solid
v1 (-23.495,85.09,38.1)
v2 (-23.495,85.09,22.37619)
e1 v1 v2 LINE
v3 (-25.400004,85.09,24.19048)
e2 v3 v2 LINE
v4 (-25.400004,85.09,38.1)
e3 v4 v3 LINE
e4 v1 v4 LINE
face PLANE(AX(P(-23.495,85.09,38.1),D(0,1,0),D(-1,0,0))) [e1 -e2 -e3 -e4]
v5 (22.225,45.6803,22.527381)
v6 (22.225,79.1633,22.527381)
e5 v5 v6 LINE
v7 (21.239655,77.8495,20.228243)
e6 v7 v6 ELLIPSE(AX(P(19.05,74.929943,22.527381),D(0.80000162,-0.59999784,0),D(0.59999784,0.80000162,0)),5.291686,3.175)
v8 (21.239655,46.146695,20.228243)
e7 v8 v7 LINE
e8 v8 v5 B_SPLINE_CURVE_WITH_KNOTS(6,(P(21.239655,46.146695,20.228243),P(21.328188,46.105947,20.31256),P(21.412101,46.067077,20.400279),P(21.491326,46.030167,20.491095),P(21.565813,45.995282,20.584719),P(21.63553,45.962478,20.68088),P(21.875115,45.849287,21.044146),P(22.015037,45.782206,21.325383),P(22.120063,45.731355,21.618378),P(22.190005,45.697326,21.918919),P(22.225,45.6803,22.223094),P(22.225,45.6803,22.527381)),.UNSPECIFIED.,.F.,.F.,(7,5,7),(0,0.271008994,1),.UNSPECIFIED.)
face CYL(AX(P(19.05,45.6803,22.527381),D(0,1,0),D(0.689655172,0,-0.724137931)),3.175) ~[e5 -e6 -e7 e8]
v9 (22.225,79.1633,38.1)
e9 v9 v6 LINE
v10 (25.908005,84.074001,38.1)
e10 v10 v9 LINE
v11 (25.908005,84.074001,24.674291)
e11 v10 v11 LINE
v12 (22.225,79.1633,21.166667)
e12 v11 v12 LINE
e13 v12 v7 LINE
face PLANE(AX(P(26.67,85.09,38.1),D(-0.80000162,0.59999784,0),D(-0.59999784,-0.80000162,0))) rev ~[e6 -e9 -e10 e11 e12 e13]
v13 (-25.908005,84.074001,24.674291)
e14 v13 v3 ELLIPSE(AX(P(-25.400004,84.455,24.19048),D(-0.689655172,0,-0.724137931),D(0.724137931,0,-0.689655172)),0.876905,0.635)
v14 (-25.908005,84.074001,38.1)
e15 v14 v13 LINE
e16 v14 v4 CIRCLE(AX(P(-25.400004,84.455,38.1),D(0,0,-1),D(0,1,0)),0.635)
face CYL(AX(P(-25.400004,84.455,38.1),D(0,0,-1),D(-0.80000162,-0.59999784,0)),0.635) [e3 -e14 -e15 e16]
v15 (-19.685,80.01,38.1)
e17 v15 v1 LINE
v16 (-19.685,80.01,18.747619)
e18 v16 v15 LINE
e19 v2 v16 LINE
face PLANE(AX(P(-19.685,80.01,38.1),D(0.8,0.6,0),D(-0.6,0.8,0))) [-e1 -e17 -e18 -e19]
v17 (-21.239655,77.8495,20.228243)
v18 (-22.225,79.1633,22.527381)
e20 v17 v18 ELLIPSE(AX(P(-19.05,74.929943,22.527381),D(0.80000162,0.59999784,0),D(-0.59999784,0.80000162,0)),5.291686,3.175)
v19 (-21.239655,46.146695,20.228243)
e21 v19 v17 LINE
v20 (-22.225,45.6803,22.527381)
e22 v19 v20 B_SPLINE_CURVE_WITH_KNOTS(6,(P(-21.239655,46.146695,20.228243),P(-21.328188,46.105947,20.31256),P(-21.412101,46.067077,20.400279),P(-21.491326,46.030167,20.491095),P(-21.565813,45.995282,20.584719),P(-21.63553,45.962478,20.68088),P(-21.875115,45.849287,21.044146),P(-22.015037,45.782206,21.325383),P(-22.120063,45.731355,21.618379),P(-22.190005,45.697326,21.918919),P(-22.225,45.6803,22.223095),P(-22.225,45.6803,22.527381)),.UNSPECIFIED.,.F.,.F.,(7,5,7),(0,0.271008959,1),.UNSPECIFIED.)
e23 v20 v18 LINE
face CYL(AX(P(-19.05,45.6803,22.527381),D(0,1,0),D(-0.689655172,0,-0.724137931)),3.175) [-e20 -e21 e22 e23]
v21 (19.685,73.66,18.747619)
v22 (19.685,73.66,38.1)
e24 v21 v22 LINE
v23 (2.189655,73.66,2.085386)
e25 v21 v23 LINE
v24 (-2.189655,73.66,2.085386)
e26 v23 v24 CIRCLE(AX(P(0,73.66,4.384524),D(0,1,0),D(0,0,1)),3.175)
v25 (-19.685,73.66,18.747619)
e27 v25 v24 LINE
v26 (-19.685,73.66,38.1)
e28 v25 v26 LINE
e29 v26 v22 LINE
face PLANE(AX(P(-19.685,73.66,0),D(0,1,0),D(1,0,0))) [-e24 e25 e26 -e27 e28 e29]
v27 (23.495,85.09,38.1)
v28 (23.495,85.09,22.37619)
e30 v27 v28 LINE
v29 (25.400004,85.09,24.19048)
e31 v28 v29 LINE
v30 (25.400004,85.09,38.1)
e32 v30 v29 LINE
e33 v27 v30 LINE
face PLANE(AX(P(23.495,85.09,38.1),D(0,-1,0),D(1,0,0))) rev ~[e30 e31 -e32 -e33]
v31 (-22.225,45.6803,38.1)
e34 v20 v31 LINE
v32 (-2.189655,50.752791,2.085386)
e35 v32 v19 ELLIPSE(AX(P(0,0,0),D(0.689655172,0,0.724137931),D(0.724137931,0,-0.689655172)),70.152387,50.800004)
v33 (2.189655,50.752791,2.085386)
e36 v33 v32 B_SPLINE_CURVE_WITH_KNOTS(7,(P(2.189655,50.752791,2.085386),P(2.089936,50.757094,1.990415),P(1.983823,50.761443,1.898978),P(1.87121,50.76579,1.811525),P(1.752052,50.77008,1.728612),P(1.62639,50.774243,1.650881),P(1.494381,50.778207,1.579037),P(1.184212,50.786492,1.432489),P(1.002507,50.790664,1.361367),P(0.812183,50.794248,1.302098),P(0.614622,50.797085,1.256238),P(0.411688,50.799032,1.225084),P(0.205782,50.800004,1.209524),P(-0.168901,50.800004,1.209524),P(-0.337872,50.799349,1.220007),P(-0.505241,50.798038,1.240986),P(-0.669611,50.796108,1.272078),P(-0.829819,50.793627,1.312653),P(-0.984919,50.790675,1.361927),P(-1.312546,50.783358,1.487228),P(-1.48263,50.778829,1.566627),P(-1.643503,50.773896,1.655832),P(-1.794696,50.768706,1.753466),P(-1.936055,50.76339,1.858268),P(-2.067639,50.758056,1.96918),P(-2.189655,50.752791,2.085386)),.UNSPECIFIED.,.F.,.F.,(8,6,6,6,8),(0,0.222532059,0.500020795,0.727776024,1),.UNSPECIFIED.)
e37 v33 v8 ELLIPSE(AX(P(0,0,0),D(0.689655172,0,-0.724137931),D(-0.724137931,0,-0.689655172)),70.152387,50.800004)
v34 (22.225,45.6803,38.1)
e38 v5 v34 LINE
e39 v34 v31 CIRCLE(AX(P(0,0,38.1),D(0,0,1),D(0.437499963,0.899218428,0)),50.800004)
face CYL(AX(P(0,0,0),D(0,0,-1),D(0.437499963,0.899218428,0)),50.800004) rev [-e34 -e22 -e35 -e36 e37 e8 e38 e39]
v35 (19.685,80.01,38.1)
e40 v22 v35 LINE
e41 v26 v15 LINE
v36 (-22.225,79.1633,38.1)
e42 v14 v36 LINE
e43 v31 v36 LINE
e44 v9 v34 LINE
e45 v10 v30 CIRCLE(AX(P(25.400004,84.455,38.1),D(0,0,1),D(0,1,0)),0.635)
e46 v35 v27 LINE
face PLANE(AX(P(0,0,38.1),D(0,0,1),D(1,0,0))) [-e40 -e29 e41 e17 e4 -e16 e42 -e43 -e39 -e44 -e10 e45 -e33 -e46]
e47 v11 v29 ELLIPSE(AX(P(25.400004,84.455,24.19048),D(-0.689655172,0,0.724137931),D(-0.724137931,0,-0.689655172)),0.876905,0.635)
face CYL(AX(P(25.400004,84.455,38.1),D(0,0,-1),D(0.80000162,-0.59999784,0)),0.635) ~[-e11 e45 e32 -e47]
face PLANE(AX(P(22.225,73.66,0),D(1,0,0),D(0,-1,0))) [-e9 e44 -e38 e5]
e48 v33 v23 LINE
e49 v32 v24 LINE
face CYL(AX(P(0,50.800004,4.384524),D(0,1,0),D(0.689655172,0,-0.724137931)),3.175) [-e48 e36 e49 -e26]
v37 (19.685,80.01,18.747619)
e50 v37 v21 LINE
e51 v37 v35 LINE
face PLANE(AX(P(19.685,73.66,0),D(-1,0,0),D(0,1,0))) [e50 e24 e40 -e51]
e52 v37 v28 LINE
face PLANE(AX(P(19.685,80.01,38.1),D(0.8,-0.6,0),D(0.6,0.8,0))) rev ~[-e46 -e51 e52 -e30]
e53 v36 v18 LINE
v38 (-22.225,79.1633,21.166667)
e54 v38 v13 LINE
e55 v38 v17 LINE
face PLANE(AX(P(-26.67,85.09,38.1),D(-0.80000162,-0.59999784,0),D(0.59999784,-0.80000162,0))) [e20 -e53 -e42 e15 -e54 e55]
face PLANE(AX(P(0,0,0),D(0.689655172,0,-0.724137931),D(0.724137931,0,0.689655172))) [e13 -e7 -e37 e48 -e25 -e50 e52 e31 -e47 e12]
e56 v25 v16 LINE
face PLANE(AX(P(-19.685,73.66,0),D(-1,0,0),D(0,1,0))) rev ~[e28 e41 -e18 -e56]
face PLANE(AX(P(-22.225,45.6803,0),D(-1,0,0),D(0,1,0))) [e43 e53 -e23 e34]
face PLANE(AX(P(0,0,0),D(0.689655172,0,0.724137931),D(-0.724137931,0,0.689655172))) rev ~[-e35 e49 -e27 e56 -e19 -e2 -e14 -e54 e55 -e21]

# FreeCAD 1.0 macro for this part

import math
import FreeCAD as App
import Part
import Sketcher
Q = App.Units.Quantity


def edges_at(feature, points):
    """Names of the edges that pass closest to the given points."""
    edges = feature.Shape.Edges
    near = lambda p: min(range(len(edges)), key=lambda i: edges[i].distToShape(Part.Vertex(*p))[0])
    return sorted({f"Edge{near(p) + 1}" for p in points})

doc = App.newDocument("Part")
body = doc.addObject("PartDesign::Body", "Body")

# Sketch on XY plane
sketch1 = body.newObject("Sketcher::SketchObject", "Sketch")
sketch1.AttachmentSupport = (doc.getObject("XY_Plane"), [""])
sketch1.MapMode = "FlatFace"
sketch1.addGeometry(Part.ArcOfCircle(Part.Circle(App.Vector(0, 0, 0), App.Vector(0, 0, 1), 50.8), math.radians(64), math.radians(116)), False)
sketch1.addGeometry(Part.LineSegment(App.Vector(22.2, 45.7, 0), App.Vector(22.2, 80, 0)), False)
sketch1.addGeometry(Part.LineSegment(App.Vector(22.2, 80, 0), App.Vector(19.7, 80, 0)), False)
sketch1.addGeometry(Part.LineSegment(App.Vector(19.7, 80, 0), App.Vector(19.7, 73.7, 0)), False)
sketch1.addGeometry(Part.LineSegment(App.Vector(19.7, 73.7, 0), App.Vector(-19.7, 73.7, 0)), False)
sketch1.addGeometry(Part.LineSegment(App.Vector(-19.7, 73.7, 0), App.Vector(-19.7, 80, 0)), False)
sketch1.addGeometry(Part.LineSegment(App.Vector(-19.7, 80, 0), App.Vector(-22.2, 80, 0)), False)
sketch1.addGeometry(Part.LineSegment(App.Vector(-22.2, 80, 0), App.Vector(-22.2, 45.7, 0)), False)
sketch1.addConstraint(Sketcher.Constraint("Coincident", 0, 1, 1, 1))
sketch1.addConstraint(Sketcher.Constraint("Coincident", 1, 2, 2, 1))
sketch1.addConstraint(Sketcher.Constraint("Coincident", 2, 2, 3, 1))
sketch1.addConstraint(Sketcher.Constraint("Coincident", 3, 2, 4, 1))
sketch1.addConstraint(Sketcher.Constraint("Coincident", 4, 2, 5, 1))
sketch1.addConstraint(Sketcher.Constraint("Coincident", 5, 2, 6, 1))
sketch1.addConstraint(Sketcher.Constraint("Coincident", 6, 2, 7, 1))
sketch1.addConstraint(Sketcher.Constraint("Coincident", 7, 2, 0, 2))
sketch1.addConstraint(Sketcher.Constraint("Vertical", 1))
sketch1.addConstraint(Sketcher.Constraint("Horizontal", 2))
sketch1.addConstraint(Sketcher.Constraint("Vertical", 3))
sketch1.addConstraint(Sketcher.Constraint("Horizontal", 4))
sketch1.addConstraint(Sketcher.Constraint("Vertical", 5))
sketch1.addConstraint(Sketcher.Constraint("Horizontal", 6))
sketch1.addConstraint(Sketcher.Constraint("Vertical", 7))
sketch1.addConstraint(Sketcher.Constraint("Coincident", 0, 3, -1, 1))
sketch1.addConstraint(Sketcher.Constraint("Symmetric", 2, 2, 5, 2, -2))
sketch1.addConstraint(Sketcher.Constraint("Horizontal", 0, 1, 7, 2))
sketch1.addConstraint(Sketcher.Constraint("Radius", 0, Q("2 in")))
sketch1.addConstraint(Sketcher.Constraint("DistanceX", 2, 2, 2, 1, Q("0.1 in")))
sketch1.addConstraint(Sketcher.Constraint("DistanceY", 3, 2, 3, 1, Q("0.25 in")))
sketch1.addConstraint(Sketcher.Constraint("DistanceX", 6, 2, 1, 2, Q("1.75 in")))
sketch1.addConstraint(Sketcher.Constraint("DistanceY", -1, 1, 3, 2, Q("2.9 in")))
pad1 = body.newObject("PartDesign::Pad", "Pad")
pad1.Profile = sketch1
pad1.Length = Q("1.5 in")

# Sketch on XY plane
sketch2 = body.newObject("Sketcher::SketchObject", "Sketch001")
sketch2.AttachmentSupport = (doc.getObject("XY_Plane"), [""])
sketch2.MapMode = "FlatFace"
sketch2.AttachmentOffset = App.Placement(App.Vector(0, 0, 1.5 * 25.4), App.Rotation())
sketch2.addGeometry(Part.LineSegment(App.Vector(-22.2, 80, 0), App.Vector(-19.7, 80, 0)), False)
sketch2.addGeometry(Part.LineSegment(App.Vector(-19.7, 80, 0), App.Vector(-23.5, 85.1, 0)), False)
sketch2.addGeometry(Part.LineSegment(App.Vector(-23.5, 85.1, 0), App.Vector(-26.7, 85.1, 0)), False)
sketch2.addGeometry(Part.LineSegment(App.Vector(-26.7, 85.1, 0), App.Vector(-22.2, 79.2, 0)), False)
sketch2.addGeometry(Part.LineSegment(App.Vector(-22.2, 79.2, 0), App.Vector(-22.2, 80, 0)), False)
sketch2.addGeometry(Part.LineSegment(App.Vector(19.7, 80, 0), App.Vector(22.2, 80, 0)), False)
sketch2.addGeometry(Part.LineSegment(App.Vector(22.2, 80, 0), App.Vector(22.2, 79.2, 0)), False)
sketch2.addGeometry(Part.LineSegment(App.Vector(22.2, 79.2, 0), App.Vector(26.7, 85.1, 0)), False)
sketch2.addGeometry(Part.LineSegment(App.Vector(26.7, 85.1, 0), App.Vector(23.5, 85.1, 0)), False)
sketch2.addGeometry(Part.LineSegment(App.Vector(23.5, 85.1, 0), App.Vector(19.7, 80, 0)), False)
sketch2.addConstraint(Sketcher.Constraint("Coincident", 0, 2, 1, 1))
sketch2.addConstraint(Sketcher.Constraint("Coincident", 1, 2, 2, 1))
sketch2.addConstraint(Sketcher.Constraint("Coincident", 2, 2, 3, 1))
sketch2.addConstraint(Sketcher.Constraint("Coincident", 3, 2, 4, 1))
sketch2.addConstraint(Sketcher.Constraint("Coincident", 4, 2, 0, 1))
sketch2.addConstraint(Sketcher.Constraint("Coincident", 5, 2, 6, 1))
sketch2.addConstraint(Sketcher.Constraint("Coincident", 6, 2, 7, 1))
sketch2.addConstraint(Sketcher.Constraint("Coincident", 7, 2, 8, 1))
sketch2.addConstraint(Sketcher.Constraint("Coincident", 8, 2, 9, 1))
sketch2.addConstraint(Sketcher.Constraint("Coincident", 9, 2, 5, 1))
sketch2.addConstraint(Sketcher.Constraint("Horizontal", 0))
sketch2.addConstraint(Sketcher.Constraint("Horizontal", 2))
sketch2.addConstraint(Sketcher.Constraint("Vertical", 4))
sketch2.addConstraint(Sketcher.Constraint("Horizontal", 5))
sketch2.addConstraint(Sketcher.Constraint("Vertical", 6))
sketch2.addConstraint(Sketcher.Constraint("Horizontal", 8))
sketch2.addConstraint(Sketcher.Constraint("Symmetric", 4, 2, 5, 2, -2))
sketch2.addConstraint(Sketcher.Constraint("Symmetric", 2, 2, 7, 2, -2))
sketch2.addConstraint(Sketcher.Constraint("Parallel", 1, 3))
sketch2.addConstraint(Sketcher.Constraint("Parallel", 7, 9))
sketch2.addConstraint(Sketcher.Constraint("Horizontal", 3, 2, 6, 2))
sketch2.addConstraint(Sketcher.Constraint("Equal", 0, 5))
sketch2.addConstraint(Sketcher.Constraint("DistanceX", 0, 1, 0, 2, Q("0.1 in")))
sketch2.addConstraint(Sketcher.Constraint("DistanceY", 0, 2, 1, 2, Q("0.2 in")))
sketch2.addConstraint(Sketcher.Constraint("DistanceX", 1, 2, 5, 2, Q("1.8 in")))
sketch2.addConstraint(Sketcher.Constraint("Distance", 1, Q("0.25 in")))
sketch2.addConstraint(Sketcher.Constraint("DistanceX", 2, 2, 2, 1, Q("0.125 in")))
sketch2.addConstraint(Sketcher.Constraint("DistanceY", -1, 1, 0, 2, Q("3.15 in")))
pad2 = body.newObject("PartDesign::Pad", "Pad001")
pad2.Profile = sketch2
pad2.Length = Q("1.5 in")
pad2.Reversed = True

# Sketch on XZ plane
sketch3 = body.newObject("Sketcher::SketchObject", "Sketch002")
sketch3.AttachmentSupport = (doc.getObject("XZ_Plane"), [""])
sketch3.MapMode = "FlatFace"
sketch3.addGeometry(Part.LineSegment(App.Vector(-27, 25, 0), App.Vector(0, 0, 0)), False)
sketch3.addGeometry(Part.LineSegment(App.Vector(0, 0, 0), App.Vector(-27, 0, 0)), False)
sketch3.addGeometry(Part.LineSegment(App.Vector(-27, 0, 0), App.Vector(-27, 25, 0)), False)
sketch3.addGeometry(Part.LineSegment(App.Vector(27, 0, 0), App.Vector(0, 0, 0)), False)
sketch3.addGeometry(Part.LineSegment(App.Vector(0, 0, 0), App.Vector(27, 25, 0)), False)
sketch3.addGeometry(Part.LineSegment(App.Vector(27, 25, 0), App.Vector(27, 0, 0)), False)
sketch3.addConstraint(Sketcher.Constraint("Coincident", 0, 2, 1, 1))
sketch3.addConstraint(Sketcher.Constraint("Coincident", 1, 2, 2, 1))
sketch3.addConstraint(Sketcher.Constraint("Coincident", 2, 2, 0, 1))
sketch3.addConstraint(Sketcher.Constraint("Coincident", 3, 2, 4, 1))
sketch3.addConstraint(Sketcher.Constraint("Coincident", 4, 2, 5, 1))
sketch3.addConstraint(Sketcher.Constraint("Coincident", 5, 2, 3, 1))
sketch3.addConstraint(Sketcher.Constraint("Horizontal", 1))
sketch3.addConstraint(Sketcher.Constraint("Vertical", 2))
sketch3.addConstraint(Sketcher.Constraint("Horizontal", 3))
sketch3.addConstraint(Sketcher.Constraint("Vertical", 5))
sketch3.addConstraint(Sketcher.Constraint("Coincident", 0, 2, -1, 1))
sketch3.addConstraint(Sketcher.Constraint("Coincident", 3, 2, -1, 1))
sketch3.addConstraint(Sketcher.Constraint("Symmetric", 2, 2, 4, 2, -2))
sketch3.addConstraint(Sketcher.Constraint("DistanceY", 2, 1, 2, 2, Q("1 in")))
sketch3.addConstraint(Sketcher.Constraint("DistanceX", 1, 2, 1, 1, Q("1.05 in")))
pocket1 = body.newObject("PartDesign::Pocket", "Pocket")
pocket1.Profile = sketch3
pocket1.Type = "ThroughAll"
doc.recompute()

fillet = body.newObject("PartDesign::Fillet", "Fillet")
fillet.Base = (pocket1, edges_at(pocket1, [(0, 62.23, 0), (22.225, 62.422, 21.167), (-22.225, 62.422, 21.167)]))
fillet.Radius = Q("0.125 in")
doc.recompute()

fillet2 = body.newObject("PartDesign::Fillet", "Fillet001")
fillet2.Base = (fillet, edges_at(fillet, [(26.67, 85.09, 31.75), (-26.67, 85.09, 31.75)]))
fillet2.Radius = Q("0.025 in")

doc.recompute()
